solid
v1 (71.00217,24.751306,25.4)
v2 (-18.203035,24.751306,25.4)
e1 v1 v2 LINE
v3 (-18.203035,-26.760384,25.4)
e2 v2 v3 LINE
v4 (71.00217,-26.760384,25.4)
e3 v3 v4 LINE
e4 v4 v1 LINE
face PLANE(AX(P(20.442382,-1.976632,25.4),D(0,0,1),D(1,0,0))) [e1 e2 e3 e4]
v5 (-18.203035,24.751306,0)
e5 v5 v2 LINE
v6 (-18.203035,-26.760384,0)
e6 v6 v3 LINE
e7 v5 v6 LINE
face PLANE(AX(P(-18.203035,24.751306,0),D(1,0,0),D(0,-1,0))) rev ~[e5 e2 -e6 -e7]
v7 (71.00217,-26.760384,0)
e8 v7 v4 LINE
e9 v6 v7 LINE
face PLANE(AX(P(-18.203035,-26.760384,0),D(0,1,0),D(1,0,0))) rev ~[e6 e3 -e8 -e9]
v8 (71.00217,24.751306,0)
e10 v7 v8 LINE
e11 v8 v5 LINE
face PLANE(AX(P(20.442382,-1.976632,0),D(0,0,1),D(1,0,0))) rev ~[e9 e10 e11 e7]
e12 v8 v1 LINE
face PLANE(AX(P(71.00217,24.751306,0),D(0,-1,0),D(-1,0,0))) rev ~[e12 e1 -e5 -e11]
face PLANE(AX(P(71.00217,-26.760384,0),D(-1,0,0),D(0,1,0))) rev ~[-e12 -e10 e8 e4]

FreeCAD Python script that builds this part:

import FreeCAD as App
import Part
import Sketcher
from FreeCAD import Vector
Q = App.Units.Quantity

doc = App.newDocument("Part")
body = doc.addObject("PartDesign::Body", "Body")

sketch1 = body.newObject("Sketcher::SketchObject", "Sketch")
sketch1.AttachmentSupport = (doc.getObject("XY_Plane"), [""])
sketch1.MapMode = "FlatFace"
sketch1.addGeometry(Part.LineSegment(Vector(-18, -27, 0), Vector(71, -27, 0)), False)
sketch1.addGeometry(Part.LineSegment(Vector(71, -27, 0), Vector(71, 25, 0)), False)
sketch1.addGeometry(Part.LineSegment(Vector(71, 25, 0), Vector(-18, 25, 0)), False)
sketch1.addGeometry(Part.LineSegment(Vector(-18, 25, 0), Vector(-18, -27, 0)), False)
sketch1.addConstraint(Sketcher.Constraint("Coincident", 0, 2, 1, 1))
sketch1.addConstraint(Sketcher.Constraint("Coincident", 1, 2, 2, 1))
sketch1.addConstraint(Sketcher.Constraint("Coincident", 2, 2, 3, 1))
sketch1.addConstraint(Sketcher.Constraint("Coincident", 3, 2, 0, 1))
sketch1.addConstraint(Sketcher.Constraint("Horizontal", 0))
sketch1.addConstraint(Sketcher.Constraint("Vertical", 1))
sketch1.addConstraint(Sketcher.Constraint("Horizontal", 2))
sketch1.addConstraint(Sketcher.Constraint("Vertical", 3))
sketch1.addConstraint(Sketcher.Constraint("DistanceY", 1, 1, 1, 2, 51.51169))
sketch1.addConstraint(Sketcher.Constraint("DistanceX", 0, 1, 0, 2, 89.205205))
sketch1.addConstraint(Sketcher.Constraint("DistanceX", -1, 1, 0, 2, 71.00217))
sketch1.addConstraint(Sketcher.Constraint("DistanceY", 0, 2, -1, 1, 26.760384))
pad1 = body.newObject("PartDesign::Pad", "Pad")
pad1.Profile = sketch1
pad1.Length = Q("1 in")

doc.recompute()
